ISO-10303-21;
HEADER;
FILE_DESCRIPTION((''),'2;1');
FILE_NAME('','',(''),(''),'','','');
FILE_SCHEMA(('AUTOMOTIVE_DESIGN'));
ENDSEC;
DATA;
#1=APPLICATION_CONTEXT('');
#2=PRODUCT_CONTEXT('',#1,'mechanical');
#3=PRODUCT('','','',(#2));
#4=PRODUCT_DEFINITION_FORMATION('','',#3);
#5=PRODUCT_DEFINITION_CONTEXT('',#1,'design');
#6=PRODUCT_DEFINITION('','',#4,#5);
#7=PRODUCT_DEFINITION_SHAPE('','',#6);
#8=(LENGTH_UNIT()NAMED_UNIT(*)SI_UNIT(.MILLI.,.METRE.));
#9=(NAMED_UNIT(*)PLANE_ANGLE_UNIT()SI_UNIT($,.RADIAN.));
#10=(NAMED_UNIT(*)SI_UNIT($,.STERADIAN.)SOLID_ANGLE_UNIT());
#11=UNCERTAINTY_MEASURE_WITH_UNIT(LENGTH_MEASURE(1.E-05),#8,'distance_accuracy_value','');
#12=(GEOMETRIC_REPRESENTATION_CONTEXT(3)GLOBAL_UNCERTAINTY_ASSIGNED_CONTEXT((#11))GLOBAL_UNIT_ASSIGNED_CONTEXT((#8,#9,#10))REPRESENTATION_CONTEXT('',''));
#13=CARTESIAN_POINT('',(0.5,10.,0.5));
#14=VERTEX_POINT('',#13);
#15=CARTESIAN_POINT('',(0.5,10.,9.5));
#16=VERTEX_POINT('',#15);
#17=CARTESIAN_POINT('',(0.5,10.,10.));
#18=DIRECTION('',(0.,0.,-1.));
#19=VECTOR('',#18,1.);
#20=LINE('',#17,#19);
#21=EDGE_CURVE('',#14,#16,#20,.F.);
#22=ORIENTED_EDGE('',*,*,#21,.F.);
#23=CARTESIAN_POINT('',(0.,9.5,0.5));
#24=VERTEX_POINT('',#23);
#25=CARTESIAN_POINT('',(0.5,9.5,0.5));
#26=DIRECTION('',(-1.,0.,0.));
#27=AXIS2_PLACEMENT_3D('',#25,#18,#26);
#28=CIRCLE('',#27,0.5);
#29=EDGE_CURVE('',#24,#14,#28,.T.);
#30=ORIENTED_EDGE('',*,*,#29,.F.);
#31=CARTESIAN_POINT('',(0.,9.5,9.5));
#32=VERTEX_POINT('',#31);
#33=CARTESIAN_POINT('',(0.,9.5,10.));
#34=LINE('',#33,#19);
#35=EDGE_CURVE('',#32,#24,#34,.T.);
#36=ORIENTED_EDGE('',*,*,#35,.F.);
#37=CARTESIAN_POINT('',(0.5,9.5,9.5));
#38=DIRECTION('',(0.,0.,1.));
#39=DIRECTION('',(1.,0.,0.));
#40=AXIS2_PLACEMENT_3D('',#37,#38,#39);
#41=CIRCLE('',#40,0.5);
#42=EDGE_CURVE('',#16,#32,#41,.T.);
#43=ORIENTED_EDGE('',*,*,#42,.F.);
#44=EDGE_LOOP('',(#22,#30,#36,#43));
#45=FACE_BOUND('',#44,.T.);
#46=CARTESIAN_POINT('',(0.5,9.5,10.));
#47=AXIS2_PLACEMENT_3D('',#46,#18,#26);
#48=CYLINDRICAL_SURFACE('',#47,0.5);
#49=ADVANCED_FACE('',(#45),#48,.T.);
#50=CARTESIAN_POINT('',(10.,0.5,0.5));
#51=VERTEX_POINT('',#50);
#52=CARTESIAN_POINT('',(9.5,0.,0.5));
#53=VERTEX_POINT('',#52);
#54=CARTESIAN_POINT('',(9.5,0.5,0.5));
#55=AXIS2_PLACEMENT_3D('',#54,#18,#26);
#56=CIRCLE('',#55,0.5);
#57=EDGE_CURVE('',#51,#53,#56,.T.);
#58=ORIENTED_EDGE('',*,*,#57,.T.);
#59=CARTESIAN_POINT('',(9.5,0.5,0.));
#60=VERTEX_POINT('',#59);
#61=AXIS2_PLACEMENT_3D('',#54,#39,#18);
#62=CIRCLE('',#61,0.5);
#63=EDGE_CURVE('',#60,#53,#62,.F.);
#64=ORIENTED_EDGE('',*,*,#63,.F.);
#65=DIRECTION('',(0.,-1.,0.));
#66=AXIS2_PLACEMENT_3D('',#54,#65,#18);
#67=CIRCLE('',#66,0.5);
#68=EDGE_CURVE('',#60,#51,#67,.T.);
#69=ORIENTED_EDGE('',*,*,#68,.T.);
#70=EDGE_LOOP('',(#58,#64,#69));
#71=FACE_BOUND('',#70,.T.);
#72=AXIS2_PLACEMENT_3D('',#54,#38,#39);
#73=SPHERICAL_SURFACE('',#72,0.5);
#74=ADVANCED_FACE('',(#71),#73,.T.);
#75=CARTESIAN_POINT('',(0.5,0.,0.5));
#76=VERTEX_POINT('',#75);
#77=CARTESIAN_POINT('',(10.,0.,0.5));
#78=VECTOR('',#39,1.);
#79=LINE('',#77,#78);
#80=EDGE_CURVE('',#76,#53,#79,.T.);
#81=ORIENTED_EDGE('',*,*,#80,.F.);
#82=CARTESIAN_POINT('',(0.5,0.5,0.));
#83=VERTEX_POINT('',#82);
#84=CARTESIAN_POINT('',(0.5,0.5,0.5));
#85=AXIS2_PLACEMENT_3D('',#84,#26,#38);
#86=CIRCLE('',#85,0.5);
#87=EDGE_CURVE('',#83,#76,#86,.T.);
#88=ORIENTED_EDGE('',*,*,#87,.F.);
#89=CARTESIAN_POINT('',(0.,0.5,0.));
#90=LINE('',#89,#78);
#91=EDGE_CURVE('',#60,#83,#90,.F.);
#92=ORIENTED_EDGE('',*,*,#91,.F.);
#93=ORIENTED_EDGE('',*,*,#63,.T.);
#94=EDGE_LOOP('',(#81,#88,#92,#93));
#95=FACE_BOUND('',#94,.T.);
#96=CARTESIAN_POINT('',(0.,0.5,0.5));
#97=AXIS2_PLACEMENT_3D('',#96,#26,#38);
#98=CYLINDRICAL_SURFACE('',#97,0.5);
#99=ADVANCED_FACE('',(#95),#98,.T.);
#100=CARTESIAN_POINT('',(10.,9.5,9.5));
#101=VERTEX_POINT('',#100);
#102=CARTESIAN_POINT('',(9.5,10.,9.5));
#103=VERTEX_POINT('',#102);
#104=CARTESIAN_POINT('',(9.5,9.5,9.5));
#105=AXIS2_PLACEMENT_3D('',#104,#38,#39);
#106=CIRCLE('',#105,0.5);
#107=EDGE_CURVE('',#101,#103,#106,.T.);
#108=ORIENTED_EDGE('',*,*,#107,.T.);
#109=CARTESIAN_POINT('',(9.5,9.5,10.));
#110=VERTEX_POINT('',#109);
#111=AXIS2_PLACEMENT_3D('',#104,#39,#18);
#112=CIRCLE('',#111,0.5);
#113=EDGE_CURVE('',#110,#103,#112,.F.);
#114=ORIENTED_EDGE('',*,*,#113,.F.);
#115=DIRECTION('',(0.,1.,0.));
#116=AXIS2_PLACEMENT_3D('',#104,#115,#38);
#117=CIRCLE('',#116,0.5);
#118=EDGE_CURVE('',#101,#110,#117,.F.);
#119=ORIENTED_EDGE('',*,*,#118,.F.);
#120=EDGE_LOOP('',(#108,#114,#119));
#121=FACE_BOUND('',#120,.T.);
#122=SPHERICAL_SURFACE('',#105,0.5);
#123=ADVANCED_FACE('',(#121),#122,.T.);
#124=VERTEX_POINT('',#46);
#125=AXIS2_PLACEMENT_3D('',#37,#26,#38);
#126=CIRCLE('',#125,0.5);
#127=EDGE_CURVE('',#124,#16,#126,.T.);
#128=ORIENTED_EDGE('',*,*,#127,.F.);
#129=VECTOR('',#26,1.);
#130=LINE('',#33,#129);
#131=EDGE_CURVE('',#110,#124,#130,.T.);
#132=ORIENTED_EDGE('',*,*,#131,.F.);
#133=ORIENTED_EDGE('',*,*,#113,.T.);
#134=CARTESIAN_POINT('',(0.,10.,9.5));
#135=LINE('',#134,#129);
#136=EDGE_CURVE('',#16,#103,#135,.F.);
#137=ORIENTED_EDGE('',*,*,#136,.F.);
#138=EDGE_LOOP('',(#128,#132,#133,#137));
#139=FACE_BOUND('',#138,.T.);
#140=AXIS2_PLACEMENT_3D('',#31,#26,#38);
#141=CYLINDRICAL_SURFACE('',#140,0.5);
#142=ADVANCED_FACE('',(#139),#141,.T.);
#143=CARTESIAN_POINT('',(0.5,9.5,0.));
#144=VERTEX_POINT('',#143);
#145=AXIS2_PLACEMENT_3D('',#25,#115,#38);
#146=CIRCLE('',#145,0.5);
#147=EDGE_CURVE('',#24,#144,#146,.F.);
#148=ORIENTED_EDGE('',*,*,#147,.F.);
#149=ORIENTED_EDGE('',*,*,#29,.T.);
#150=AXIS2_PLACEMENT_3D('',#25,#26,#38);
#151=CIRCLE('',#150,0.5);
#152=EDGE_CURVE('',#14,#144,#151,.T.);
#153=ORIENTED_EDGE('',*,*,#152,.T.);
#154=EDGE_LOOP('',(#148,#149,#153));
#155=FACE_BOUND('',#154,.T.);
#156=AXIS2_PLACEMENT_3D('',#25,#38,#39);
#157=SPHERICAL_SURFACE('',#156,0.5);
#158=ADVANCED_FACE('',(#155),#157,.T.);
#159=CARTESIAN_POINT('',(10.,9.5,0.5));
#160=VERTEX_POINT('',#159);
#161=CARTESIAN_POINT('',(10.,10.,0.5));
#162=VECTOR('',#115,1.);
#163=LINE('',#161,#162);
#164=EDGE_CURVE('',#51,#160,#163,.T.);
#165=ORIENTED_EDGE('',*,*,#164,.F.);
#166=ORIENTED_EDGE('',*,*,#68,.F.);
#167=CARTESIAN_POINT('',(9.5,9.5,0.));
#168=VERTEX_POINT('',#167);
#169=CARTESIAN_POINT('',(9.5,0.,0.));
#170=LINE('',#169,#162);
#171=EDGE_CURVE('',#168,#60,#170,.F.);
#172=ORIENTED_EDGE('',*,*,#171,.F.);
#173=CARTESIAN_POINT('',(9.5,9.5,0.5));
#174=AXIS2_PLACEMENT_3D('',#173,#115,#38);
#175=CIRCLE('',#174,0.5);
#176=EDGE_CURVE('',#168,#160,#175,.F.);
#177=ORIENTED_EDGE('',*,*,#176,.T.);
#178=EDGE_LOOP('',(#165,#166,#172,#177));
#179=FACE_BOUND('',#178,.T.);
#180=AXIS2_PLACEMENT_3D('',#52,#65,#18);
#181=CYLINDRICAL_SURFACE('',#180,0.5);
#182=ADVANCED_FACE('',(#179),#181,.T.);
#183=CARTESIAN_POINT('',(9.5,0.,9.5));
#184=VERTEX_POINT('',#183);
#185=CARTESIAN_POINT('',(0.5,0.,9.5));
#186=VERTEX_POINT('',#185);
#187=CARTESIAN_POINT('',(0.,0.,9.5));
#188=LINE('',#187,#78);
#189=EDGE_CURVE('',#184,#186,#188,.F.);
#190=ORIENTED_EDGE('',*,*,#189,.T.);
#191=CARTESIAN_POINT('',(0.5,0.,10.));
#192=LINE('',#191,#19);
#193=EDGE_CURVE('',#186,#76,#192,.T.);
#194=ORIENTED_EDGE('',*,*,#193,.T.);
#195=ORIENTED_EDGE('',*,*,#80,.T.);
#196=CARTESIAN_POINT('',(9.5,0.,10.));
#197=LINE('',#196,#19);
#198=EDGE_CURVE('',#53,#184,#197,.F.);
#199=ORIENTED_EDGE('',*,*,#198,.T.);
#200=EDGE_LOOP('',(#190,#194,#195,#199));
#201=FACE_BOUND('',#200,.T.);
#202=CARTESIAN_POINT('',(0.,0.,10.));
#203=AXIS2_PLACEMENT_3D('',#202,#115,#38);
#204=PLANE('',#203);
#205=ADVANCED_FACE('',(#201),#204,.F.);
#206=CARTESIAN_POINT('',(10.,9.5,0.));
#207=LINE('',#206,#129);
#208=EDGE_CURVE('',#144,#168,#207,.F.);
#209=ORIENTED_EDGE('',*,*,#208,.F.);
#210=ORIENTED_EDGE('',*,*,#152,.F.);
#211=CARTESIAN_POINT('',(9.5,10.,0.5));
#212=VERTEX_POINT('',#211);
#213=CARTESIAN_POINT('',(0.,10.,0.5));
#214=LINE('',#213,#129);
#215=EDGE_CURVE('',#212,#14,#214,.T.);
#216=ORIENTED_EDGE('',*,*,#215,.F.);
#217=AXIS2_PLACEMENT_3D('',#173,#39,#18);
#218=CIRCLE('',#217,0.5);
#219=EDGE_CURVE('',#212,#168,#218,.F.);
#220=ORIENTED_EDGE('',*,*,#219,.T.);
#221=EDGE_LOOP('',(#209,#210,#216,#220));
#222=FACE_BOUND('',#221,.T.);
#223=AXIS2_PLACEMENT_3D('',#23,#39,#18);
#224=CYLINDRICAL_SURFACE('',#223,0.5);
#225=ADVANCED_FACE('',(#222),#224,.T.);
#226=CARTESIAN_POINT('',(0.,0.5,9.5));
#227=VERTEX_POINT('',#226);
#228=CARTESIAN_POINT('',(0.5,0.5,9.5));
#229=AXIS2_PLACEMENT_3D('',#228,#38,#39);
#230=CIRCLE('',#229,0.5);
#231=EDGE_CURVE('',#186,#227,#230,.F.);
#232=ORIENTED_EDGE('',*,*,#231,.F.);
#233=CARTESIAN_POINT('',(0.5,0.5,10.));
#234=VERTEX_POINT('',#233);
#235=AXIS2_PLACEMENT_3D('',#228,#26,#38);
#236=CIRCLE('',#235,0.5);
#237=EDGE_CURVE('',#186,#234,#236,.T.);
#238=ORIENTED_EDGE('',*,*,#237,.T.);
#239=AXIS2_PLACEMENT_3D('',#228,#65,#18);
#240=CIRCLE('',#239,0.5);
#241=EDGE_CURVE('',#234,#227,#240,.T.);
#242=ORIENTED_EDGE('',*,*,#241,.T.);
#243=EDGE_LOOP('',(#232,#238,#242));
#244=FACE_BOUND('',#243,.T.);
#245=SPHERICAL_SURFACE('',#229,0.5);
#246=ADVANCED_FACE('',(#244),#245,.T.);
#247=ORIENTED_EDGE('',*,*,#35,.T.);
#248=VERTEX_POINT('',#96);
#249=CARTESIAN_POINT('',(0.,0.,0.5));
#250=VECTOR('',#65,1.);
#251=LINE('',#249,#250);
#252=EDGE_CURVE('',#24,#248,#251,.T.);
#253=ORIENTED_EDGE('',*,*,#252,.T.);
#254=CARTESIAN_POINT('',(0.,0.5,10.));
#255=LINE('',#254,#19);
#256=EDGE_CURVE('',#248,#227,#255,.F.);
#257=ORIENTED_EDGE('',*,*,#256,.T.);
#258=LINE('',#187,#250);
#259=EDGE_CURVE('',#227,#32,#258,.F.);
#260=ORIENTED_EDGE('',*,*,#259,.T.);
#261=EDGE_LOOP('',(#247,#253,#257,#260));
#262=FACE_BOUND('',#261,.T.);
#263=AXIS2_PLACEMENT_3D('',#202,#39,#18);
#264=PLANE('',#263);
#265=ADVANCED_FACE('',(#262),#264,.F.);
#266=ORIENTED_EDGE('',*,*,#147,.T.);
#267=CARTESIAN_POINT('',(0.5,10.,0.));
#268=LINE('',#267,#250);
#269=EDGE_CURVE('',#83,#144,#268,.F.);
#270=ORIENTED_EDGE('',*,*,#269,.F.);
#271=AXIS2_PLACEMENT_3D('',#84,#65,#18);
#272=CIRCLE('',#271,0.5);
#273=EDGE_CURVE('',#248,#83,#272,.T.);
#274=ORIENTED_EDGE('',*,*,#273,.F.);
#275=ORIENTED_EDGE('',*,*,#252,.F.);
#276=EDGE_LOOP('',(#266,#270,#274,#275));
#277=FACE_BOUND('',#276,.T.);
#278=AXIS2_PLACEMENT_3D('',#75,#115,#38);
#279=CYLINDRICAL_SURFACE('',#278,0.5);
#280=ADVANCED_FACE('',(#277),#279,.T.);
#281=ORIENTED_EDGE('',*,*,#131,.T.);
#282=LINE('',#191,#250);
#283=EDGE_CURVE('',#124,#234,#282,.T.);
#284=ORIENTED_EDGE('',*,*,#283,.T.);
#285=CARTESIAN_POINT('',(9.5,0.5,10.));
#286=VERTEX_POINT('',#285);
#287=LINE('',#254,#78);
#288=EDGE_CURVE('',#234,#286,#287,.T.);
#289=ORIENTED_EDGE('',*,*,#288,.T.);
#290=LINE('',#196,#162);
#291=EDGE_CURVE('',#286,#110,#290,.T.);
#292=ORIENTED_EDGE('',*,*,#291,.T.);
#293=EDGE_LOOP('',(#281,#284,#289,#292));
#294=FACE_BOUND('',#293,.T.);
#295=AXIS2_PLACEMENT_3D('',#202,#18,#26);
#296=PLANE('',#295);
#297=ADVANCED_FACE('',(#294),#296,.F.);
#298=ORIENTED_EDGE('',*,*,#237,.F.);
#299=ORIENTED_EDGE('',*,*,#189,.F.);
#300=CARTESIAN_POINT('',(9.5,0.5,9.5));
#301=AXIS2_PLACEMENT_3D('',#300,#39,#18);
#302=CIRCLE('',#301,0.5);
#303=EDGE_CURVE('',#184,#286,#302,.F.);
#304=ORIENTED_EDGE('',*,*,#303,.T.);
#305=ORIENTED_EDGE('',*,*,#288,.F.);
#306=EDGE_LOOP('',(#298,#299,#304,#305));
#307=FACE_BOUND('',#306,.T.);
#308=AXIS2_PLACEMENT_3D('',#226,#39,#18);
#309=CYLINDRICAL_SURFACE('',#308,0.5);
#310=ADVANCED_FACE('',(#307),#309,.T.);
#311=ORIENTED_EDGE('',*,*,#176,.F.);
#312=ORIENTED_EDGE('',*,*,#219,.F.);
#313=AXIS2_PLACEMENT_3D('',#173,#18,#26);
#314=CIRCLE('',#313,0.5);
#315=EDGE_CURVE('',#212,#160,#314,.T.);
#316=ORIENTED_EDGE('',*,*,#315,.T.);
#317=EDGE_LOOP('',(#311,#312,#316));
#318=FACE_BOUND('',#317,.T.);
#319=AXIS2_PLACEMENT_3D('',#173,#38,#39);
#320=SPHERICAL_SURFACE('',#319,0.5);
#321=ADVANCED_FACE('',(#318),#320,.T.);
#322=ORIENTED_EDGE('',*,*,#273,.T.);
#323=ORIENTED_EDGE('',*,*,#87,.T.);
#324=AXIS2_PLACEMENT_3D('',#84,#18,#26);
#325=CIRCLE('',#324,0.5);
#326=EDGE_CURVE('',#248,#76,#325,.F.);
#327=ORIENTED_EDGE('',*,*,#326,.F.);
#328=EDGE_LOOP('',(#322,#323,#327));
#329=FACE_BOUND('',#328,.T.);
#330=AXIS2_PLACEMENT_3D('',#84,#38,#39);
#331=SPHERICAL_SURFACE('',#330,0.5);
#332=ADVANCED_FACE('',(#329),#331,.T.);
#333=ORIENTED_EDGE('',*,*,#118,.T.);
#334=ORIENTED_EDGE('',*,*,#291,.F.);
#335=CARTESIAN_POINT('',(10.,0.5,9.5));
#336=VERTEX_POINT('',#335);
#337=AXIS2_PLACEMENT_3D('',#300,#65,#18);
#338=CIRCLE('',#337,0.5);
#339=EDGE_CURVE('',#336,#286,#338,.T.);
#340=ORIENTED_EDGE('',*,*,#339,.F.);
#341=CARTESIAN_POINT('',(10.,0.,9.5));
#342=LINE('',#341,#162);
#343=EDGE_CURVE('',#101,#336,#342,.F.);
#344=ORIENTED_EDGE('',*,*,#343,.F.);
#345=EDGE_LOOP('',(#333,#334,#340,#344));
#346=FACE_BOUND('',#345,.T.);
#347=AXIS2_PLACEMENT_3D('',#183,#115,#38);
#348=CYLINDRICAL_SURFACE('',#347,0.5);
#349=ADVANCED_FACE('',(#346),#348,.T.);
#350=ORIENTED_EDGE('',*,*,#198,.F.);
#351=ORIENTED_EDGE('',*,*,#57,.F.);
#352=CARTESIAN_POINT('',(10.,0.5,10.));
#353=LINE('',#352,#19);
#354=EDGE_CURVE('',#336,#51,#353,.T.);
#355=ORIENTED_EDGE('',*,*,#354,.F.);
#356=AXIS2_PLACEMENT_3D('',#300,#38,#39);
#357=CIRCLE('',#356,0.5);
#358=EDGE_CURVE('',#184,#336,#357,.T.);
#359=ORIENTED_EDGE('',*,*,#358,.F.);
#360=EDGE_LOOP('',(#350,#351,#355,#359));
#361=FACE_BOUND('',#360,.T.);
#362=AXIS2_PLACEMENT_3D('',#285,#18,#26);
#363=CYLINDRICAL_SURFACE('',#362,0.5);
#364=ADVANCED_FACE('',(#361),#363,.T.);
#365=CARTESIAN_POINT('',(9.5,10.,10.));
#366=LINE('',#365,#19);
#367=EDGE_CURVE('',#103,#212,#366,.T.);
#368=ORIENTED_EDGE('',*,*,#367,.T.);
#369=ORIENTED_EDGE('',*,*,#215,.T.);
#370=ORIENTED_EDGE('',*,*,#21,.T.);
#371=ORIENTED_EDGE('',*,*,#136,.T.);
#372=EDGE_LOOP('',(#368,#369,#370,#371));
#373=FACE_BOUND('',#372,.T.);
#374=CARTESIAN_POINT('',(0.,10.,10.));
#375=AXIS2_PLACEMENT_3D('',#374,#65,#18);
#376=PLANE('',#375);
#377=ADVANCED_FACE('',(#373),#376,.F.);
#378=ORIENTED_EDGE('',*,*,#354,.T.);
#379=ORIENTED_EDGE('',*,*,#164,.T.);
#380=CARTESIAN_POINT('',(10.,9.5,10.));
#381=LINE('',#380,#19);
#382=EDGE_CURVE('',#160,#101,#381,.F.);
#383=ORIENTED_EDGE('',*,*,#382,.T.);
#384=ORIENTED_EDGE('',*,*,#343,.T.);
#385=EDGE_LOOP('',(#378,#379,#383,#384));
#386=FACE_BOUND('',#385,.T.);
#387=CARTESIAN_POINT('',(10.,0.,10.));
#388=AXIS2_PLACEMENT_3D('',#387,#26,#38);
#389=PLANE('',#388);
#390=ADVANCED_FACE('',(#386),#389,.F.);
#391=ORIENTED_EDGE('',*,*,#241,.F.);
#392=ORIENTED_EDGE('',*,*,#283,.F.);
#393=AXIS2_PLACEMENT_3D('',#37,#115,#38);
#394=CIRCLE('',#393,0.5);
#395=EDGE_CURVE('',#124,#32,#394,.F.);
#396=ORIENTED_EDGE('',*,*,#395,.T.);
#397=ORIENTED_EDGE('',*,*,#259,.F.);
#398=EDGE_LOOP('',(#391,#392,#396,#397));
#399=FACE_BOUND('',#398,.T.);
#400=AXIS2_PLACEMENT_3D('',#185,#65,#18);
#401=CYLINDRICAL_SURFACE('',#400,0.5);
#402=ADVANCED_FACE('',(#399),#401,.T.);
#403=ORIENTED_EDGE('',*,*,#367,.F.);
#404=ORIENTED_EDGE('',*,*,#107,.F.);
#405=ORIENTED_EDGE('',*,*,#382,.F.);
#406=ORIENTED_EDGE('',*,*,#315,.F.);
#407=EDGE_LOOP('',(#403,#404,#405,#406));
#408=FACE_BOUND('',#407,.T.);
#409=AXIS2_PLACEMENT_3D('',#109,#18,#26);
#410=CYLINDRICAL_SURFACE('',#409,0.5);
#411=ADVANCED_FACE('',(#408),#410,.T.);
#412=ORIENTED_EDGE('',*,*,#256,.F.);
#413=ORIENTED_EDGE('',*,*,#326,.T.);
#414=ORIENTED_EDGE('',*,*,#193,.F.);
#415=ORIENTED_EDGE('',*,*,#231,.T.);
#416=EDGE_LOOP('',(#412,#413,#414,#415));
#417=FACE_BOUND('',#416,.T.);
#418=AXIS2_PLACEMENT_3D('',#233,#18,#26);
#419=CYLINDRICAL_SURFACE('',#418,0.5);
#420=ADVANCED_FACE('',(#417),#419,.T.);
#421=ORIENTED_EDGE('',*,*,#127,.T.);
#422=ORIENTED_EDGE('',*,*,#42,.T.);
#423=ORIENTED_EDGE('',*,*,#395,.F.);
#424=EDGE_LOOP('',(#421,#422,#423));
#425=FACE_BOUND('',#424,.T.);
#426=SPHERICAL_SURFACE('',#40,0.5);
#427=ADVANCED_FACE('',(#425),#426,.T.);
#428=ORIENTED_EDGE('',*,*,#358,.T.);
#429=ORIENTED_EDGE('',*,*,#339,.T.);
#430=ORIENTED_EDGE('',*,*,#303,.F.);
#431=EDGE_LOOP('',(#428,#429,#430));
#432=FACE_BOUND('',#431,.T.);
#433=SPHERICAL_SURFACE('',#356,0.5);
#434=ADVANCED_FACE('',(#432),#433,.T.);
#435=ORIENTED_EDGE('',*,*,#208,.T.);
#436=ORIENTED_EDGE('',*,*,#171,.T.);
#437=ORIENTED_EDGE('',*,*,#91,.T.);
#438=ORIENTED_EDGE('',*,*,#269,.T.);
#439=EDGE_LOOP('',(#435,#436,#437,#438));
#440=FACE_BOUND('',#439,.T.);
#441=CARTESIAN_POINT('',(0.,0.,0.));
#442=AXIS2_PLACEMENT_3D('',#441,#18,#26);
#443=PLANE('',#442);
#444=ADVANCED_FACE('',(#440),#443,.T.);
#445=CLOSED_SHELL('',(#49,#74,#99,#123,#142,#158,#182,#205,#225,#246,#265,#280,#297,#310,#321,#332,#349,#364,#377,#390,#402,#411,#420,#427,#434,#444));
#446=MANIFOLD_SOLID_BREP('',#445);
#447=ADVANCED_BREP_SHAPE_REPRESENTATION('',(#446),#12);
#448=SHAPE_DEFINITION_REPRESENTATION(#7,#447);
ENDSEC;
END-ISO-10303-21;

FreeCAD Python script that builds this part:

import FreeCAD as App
import Part
import Sketcher

doc = App.newDocument("Part")
params = doc.addObject("Spreadsheet::Sheet", "Params")
for row, (alias, value) in enumerate([
    ("sketch1_width", "10 mm"),
    ("pad1_length", "10 mm"),
    ("fillet_radius", "0.5 mm"),
], start=1):
    params.set(f"A{row}", alias)
    params.set(f"B{row}", "=" + value)
    params.setAlias(f"B{row}", alias)

body = doc.addObject("PartDesign::Body", "Body")

sketch1 = body.newObject("Sketcher::SketchObject", "Sketch")
sketch1.AttachmentSupport = (doc.getObject("XY_Plane"), [""])
sketch1.MapMode = "FlatFace"
sketch1.addGeometry([
    Part.LineSegment(App.Vector(0, 10, 0), App.Vector(0, 0, 0)),
    Part.LineSegment(App.Vector(0, 0, 0), App.Vector(10, 0, 0)),
    Part.LineSegment(App.Vector(10, 0, 0), App.Vector(10, 10, 0)),
    Part.LineSegment(App.Vector(10, 10, 0), App.Vector(0, 10, 0)),
], False)
sketch1.addConstraint([
    Sketcher.Constraint("Coincident", 0, 2, 1, 1),
    Sketcher.Constraint("Coincident", 1, 2, 2, 1),
    Sketcher.Constraint("Coincident", 2, 2, 3, 1),
    Sketcher.Constraint("Coincident", 3, 2, 0, 1),
    Sketcher.Constraint("Vertical", 0),
    Sketcher.Constraint("Horizontal", 1),
    Sketcher.Constraint("Vertical", 2),
    Sketcher.Constraint("Horizontal", 3),
    Sketcher.Constraint("Coincident", 0, 2, -1, 1),
    Sketcher.Constraint("Equal", 3, 0),
    Sketcher.Constraint("DistanceX", 1, 1, 1, 2, 10.0),
])
sketch1.setExpression("Constraints[10]", "Params.sketch1_width")
pad1 = body.newObject("PartDesign::Pad", "Pad")
pad1.Profile = sketch1
pad1.setExpression("Length", "Params.pad1_length")
doc.recompute()

fillet = body.newObject("PartDesign::Fillet", "Fillet")
fillet.Base = (pad1, ["Edge1"])
fillet.UseAllEdges = True
fillet.setExpression("Radius", "Params.fillet_radius")

doc.recompute()
